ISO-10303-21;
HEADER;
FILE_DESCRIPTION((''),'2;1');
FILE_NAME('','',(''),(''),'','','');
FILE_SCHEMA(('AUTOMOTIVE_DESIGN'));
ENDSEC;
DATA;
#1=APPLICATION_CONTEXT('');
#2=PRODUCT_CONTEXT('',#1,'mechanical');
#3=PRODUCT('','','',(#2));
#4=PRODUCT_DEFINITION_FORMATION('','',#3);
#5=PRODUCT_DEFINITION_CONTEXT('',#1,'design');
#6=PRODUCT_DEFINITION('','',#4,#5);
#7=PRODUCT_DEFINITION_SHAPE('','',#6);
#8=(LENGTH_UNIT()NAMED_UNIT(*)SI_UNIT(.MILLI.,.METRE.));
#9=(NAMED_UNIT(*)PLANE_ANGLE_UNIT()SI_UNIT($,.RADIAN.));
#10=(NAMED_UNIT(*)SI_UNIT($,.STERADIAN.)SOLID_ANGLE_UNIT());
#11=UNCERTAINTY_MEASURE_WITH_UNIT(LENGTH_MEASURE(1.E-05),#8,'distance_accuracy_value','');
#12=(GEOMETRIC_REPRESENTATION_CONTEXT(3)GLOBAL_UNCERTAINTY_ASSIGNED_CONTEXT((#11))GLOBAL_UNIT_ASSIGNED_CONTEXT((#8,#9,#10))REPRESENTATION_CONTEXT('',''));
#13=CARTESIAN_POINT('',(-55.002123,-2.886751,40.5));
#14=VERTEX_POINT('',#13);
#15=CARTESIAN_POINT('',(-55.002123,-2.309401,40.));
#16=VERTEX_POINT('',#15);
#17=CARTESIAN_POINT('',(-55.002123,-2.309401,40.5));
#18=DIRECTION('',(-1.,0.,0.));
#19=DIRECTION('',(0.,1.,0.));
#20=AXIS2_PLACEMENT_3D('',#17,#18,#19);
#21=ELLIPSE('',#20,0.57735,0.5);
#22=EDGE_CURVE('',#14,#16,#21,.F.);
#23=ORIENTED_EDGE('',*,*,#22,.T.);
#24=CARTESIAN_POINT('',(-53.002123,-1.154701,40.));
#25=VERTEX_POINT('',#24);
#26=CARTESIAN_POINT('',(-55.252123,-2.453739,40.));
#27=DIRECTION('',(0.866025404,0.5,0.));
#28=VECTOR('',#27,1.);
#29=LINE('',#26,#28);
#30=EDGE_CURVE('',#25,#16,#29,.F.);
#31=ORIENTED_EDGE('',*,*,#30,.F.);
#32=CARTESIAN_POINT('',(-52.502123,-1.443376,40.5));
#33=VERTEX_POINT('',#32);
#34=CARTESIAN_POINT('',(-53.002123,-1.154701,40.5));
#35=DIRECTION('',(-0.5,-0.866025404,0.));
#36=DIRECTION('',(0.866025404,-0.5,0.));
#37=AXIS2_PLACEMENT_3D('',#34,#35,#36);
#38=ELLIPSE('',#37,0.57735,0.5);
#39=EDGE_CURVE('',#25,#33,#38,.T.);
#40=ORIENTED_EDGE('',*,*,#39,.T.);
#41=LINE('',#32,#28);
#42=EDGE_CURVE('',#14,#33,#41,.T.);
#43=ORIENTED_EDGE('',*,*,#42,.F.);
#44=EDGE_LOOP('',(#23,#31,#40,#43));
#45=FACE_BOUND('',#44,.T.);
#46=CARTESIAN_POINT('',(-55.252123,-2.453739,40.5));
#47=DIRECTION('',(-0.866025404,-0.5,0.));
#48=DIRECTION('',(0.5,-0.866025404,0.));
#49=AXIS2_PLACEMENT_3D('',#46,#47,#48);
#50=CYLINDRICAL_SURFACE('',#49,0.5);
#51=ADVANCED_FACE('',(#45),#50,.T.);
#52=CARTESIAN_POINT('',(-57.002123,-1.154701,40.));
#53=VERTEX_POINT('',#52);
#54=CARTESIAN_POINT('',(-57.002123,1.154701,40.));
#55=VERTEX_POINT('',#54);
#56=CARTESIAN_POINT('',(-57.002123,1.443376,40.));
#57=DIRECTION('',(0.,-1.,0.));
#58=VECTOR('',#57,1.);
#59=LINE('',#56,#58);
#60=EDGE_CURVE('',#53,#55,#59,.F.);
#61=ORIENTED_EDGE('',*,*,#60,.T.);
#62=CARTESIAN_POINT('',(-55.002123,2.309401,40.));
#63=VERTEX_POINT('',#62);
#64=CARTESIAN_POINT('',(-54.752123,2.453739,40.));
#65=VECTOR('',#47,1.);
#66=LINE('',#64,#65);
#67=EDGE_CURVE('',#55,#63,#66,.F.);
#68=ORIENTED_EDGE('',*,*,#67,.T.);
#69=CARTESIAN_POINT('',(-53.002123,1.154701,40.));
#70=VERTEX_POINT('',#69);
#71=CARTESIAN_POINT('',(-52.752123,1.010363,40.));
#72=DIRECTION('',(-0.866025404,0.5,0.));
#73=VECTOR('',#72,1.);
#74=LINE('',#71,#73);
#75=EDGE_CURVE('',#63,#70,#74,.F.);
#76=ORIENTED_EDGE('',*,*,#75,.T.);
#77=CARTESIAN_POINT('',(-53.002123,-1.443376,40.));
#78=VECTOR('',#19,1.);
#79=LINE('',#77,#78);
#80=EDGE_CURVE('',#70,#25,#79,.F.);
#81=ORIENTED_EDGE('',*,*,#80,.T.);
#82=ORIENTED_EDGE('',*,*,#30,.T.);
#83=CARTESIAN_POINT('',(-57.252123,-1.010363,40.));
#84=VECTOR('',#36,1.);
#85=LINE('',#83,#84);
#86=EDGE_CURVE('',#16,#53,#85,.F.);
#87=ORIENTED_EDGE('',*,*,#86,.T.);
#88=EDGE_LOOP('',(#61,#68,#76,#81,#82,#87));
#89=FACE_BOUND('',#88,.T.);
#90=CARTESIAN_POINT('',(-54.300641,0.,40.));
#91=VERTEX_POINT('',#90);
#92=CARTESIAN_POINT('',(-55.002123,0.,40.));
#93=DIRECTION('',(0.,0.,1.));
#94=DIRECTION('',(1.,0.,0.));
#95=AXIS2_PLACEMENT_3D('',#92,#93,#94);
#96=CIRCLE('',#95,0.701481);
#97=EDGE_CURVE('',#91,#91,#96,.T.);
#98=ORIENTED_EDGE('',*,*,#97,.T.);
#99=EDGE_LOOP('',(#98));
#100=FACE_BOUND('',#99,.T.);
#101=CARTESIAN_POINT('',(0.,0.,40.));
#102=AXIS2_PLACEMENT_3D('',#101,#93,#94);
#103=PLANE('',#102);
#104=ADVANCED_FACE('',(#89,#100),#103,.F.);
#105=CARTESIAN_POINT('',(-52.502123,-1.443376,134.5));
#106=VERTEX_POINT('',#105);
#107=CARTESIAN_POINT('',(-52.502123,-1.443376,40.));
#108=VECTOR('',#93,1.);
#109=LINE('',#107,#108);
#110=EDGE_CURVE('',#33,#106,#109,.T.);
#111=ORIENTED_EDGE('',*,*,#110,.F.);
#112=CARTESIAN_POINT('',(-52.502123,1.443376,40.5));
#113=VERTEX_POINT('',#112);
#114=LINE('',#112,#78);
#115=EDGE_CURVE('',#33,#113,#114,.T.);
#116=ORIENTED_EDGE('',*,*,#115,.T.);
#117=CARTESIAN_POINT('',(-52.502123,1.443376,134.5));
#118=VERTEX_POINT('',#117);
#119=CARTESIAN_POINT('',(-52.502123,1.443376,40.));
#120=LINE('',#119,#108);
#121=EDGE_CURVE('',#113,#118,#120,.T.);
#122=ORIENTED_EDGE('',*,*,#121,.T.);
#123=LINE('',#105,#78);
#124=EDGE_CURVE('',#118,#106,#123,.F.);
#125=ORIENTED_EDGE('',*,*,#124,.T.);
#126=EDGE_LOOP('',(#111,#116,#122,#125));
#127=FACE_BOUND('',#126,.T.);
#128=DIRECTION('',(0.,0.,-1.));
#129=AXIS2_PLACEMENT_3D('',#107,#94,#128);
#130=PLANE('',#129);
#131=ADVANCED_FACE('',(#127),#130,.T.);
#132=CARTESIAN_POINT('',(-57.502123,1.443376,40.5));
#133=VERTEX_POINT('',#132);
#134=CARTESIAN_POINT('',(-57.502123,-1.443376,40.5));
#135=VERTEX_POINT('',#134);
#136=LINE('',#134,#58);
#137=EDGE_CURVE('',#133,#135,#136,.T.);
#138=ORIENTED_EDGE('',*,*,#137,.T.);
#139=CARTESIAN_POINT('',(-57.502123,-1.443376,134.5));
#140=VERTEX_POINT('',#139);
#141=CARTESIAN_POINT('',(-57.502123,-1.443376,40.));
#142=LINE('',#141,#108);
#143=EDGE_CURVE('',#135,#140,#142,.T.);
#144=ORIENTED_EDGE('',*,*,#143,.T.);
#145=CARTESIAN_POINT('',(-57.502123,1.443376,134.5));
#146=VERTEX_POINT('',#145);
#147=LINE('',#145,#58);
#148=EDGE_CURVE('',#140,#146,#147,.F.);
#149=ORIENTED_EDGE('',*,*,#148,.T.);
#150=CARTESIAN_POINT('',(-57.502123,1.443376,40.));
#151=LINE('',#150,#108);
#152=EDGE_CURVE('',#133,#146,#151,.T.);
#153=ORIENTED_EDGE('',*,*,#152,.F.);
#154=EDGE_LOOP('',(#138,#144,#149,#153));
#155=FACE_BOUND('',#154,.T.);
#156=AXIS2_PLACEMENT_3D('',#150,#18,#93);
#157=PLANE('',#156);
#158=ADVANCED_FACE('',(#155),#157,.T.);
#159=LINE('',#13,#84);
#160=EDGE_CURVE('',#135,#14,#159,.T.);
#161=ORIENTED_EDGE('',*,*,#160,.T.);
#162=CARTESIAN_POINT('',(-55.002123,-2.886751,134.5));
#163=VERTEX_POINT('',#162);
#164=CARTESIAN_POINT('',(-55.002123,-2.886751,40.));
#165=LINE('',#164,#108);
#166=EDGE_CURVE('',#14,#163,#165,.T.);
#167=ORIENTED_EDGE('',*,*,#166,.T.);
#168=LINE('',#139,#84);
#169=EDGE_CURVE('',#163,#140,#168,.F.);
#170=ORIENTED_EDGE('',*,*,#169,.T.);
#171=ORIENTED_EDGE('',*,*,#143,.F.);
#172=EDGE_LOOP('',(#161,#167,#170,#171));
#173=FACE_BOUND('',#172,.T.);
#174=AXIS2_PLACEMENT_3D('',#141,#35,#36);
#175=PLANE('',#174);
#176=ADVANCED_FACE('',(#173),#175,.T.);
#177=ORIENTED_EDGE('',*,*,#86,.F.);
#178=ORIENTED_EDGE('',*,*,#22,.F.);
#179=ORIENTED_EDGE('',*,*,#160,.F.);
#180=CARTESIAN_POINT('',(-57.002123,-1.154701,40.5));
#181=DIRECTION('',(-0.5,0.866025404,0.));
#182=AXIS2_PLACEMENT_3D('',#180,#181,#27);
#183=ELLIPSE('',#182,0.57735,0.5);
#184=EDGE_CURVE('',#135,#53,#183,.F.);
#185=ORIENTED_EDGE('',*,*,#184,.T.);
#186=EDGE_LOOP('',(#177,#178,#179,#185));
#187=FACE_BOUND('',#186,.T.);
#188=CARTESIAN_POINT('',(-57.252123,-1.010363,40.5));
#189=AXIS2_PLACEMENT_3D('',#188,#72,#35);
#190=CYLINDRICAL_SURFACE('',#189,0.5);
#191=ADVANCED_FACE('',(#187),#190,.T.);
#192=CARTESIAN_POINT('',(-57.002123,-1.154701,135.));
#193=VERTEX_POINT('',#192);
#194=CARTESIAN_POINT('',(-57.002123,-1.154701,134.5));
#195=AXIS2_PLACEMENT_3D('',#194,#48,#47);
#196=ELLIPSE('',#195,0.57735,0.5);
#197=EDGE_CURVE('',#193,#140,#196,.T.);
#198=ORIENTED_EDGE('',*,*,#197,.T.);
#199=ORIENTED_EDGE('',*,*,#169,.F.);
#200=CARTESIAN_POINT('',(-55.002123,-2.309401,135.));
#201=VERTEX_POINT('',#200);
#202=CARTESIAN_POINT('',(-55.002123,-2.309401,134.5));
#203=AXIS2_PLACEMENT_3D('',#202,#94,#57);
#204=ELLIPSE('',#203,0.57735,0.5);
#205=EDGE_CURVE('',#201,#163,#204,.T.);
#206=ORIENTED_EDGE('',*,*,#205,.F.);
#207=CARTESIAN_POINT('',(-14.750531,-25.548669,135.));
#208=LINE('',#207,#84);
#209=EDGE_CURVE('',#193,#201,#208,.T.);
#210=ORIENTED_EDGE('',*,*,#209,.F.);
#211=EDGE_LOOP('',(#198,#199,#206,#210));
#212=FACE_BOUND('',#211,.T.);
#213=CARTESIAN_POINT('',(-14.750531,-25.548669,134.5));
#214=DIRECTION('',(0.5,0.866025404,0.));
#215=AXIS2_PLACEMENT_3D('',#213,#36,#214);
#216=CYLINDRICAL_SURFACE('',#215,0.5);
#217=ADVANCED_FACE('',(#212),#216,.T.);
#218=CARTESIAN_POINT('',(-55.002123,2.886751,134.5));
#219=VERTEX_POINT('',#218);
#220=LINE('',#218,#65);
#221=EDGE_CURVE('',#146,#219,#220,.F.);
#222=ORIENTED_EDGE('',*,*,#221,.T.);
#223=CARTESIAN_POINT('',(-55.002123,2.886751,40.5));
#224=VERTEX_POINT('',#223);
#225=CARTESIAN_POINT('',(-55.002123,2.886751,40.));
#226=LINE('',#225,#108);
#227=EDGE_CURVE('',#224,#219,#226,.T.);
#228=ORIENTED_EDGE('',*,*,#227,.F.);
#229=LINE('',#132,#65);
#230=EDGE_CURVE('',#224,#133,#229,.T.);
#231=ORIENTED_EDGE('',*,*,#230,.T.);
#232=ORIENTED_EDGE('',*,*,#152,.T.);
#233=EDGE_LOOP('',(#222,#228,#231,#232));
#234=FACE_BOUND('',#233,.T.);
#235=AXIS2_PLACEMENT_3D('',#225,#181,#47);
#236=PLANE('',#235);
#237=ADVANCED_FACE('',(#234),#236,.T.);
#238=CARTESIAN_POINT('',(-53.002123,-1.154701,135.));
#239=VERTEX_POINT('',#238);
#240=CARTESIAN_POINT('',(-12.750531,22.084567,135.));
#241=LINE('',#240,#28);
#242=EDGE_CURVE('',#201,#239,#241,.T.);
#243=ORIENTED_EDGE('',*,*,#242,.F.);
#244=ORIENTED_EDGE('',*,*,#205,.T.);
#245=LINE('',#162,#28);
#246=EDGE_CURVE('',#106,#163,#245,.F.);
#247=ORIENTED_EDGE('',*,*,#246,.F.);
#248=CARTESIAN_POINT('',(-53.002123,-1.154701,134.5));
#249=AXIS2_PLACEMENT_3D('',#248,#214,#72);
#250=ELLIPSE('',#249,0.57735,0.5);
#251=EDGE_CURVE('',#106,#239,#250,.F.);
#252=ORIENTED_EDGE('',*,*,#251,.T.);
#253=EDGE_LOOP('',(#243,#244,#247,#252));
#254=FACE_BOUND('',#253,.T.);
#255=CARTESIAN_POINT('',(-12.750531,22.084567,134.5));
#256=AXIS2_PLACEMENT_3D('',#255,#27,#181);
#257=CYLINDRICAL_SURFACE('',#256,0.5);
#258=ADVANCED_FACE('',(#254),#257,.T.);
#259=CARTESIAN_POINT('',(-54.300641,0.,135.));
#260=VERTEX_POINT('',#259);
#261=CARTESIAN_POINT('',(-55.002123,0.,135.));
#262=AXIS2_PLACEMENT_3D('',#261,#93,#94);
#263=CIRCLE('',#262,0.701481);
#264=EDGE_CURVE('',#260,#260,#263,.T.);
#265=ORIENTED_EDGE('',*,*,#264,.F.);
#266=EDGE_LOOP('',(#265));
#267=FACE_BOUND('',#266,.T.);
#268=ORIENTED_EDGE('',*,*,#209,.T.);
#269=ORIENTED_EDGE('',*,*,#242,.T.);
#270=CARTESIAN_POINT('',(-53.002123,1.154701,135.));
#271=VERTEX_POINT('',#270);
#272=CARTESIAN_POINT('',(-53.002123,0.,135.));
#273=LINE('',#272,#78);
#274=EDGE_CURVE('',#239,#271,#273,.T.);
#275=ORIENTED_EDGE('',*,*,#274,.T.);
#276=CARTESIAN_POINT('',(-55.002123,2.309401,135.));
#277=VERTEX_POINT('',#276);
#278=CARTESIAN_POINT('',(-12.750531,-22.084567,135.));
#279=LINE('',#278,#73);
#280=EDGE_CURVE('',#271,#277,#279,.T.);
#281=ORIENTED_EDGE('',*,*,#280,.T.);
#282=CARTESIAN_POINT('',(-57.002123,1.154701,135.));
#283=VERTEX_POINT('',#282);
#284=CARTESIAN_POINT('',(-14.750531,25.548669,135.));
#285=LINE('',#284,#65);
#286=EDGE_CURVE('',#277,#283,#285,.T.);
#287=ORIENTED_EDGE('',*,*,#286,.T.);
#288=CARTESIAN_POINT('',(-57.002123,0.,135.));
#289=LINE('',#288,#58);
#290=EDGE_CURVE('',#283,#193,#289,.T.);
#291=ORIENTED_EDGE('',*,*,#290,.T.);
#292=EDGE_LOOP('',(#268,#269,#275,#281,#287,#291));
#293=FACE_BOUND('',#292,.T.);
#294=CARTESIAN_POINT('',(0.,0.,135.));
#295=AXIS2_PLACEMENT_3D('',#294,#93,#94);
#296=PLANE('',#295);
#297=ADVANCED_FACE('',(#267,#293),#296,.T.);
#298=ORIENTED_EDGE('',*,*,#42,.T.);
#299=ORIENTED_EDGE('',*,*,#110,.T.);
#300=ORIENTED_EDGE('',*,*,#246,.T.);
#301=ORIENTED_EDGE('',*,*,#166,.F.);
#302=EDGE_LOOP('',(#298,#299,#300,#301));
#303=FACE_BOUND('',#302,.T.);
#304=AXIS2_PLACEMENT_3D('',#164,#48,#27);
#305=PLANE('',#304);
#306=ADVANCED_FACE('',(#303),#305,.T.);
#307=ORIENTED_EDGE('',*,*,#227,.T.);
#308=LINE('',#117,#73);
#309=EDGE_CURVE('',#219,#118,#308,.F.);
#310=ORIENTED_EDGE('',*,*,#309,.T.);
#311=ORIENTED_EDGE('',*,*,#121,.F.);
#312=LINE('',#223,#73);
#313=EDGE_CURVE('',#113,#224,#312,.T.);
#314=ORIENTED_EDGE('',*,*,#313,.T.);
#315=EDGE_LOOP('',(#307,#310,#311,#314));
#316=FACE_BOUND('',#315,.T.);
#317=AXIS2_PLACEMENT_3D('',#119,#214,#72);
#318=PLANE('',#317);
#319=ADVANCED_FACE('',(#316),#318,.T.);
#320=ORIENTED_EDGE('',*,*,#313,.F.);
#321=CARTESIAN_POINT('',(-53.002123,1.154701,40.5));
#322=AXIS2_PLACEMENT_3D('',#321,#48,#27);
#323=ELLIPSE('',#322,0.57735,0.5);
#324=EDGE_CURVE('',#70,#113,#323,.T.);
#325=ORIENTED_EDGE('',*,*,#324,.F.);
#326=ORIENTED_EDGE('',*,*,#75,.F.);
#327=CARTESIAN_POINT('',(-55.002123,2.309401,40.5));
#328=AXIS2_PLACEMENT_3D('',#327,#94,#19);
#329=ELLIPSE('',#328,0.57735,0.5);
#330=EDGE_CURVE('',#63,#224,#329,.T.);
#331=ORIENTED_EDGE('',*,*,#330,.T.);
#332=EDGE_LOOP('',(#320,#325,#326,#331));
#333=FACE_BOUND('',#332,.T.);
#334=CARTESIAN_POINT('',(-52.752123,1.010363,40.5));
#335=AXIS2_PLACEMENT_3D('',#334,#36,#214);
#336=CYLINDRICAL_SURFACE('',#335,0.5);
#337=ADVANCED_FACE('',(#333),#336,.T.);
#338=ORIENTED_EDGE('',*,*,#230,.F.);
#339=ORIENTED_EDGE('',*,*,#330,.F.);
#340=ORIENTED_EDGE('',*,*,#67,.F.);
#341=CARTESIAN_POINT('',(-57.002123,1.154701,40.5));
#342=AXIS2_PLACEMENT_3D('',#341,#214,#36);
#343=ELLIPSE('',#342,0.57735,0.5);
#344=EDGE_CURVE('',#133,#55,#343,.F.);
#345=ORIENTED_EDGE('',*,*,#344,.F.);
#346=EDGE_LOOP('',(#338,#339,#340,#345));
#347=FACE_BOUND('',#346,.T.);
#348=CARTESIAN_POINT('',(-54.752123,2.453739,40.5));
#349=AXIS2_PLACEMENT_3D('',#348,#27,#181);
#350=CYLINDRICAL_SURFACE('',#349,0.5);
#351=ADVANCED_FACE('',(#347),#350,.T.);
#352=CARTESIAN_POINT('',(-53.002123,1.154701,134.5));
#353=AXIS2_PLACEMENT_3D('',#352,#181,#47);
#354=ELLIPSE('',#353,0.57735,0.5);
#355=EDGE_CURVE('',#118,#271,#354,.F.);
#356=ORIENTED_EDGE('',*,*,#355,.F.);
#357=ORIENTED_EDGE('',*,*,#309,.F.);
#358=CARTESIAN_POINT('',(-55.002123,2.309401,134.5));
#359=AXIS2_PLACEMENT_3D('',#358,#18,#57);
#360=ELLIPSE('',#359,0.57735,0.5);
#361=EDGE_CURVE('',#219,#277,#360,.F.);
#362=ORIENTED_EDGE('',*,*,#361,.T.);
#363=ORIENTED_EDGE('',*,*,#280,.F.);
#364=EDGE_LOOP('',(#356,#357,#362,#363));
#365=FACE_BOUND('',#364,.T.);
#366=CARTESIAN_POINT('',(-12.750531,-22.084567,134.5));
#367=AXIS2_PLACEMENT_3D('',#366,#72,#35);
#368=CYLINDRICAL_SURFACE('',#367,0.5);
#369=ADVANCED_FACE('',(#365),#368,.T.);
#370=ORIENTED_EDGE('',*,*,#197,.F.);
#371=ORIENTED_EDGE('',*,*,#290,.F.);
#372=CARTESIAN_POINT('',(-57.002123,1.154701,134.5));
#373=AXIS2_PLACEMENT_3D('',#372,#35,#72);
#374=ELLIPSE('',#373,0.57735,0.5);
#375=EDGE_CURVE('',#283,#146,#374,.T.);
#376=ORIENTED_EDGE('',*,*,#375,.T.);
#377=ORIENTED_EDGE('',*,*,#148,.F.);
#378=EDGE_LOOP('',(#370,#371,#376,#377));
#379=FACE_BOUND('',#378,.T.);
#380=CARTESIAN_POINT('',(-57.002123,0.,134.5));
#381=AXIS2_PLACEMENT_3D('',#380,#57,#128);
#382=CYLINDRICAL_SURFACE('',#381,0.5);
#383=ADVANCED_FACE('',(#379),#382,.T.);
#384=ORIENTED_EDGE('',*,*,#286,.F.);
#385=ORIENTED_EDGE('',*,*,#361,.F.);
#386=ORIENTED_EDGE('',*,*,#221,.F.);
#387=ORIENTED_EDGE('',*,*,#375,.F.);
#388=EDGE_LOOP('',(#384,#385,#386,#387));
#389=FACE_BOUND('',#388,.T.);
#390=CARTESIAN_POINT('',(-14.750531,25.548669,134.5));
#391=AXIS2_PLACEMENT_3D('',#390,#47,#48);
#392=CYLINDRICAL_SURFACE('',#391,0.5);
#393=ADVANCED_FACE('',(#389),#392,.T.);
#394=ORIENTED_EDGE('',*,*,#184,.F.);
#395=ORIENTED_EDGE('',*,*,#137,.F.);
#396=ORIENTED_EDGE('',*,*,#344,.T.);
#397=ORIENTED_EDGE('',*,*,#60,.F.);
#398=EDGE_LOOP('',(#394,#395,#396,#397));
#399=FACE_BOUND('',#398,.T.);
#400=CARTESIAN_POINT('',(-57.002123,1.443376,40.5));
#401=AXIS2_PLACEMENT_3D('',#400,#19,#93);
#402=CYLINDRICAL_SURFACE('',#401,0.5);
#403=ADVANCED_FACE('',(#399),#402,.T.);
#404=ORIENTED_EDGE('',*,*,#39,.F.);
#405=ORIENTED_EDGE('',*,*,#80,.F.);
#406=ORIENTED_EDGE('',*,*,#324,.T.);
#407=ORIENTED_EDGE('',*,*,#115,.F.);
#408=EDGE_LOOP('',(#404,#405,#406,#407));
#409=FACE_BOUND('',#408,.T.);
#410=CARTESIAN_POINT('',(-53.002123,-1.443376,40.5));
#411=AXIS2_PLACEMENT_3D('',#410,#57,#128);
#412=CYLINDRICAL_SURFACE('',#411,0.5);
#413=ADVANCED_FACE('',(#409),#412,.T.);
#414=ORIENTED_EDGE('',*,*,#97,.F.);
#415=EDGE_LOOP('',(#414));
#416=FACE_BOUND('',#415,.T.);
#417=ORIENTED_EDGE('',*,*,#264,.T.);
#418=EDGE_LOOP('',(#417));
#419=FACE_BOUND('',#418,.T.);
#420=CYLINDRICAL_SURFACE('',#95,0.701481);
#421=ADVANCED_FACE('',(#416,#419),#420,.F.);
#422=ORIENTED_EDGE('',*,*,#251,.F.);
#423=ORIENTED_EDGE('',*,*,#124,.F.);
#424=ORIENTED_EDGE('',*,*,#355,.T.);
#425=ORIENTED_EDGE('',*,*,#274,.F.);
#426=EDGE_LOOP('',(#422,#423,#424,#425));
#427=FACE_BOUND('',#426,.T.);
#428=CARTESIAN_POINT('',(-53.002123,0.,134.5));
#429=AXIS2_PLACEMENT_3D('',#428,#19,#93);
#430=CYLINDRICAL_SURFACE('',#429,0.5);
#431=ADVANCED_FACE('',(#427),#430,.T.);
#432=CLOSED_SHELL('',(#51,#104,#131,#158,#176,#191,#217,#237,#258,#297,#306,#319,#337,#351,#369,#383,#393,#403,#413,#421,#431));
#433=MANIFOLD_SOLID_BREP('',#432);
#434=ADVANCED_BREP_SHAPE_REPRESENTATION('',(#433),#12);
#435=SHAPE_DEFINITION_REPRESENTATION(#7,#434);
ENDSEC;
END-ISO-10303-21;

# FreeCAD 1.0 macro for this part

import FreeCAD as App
import Part
import Sketcher
from FreeCAD import Vector
Q = App.Units.Quantity


def edges_at(feature, points):
    """Names of the edges that pass closest to the given points."""
    edges = feature.Shape.Edges
    near = lambda p: min(range(len(edges)), key=lambda i: edges[i].distToShape(Part.Vertex(*p))[0])
    return sorted({f"Edge{near(p) + 1}" for p in points})

doc = App.newDocument("Part")
params = doc.addObject("Spreadsheet::Sheet", "Params")
for row, (alias, value) in enumerate([
    ("pad1_length", "95 mm"),
    ("fillet_radius", "0.5 mm"),
], start=1):
    params.set(f"A{row}", alias)
    params.set(f"B{row}", "=" + value)
    params.setAlias(f"B{row}", alias)

body = doc.addObject("PartDesign::Body", "Body")

# Sketch on XY plane
sketch1 = body.newObject("Sketcher::SketchObject", "Sketch")
sketch1.AttachmentSupport = (doc.getObject("XY_Plane"), [""])
sketch1.MapMode = "FlatFace"
sketch1.AttachmentOffset = App.Placement(Vector(0, 0, 135), App.Rotation())
sketch1.addGeometry([
    Part.LineSegment(Vector(-55, 2.9, 0), Vector(-57.5, 1.4, 0)),  # 0
    Part.LineSegment(Vector(-57.5, 1.4, 0), Vector(-57.5, -1.4, 0)),  # 1
    Part.LineSegment(Vector(-57.5, -1.4, 0), Vector(-55, -2.9, 0)),  # 2
    Part.LineSegment(Vector(-55, -2.9, 0), Vector(-52.5, -1.4, 0)),  # 3
    Part.LineSegment(Vector(-52.5, -1.4, 0), Vector(-52.5, 1.4, 0)),  # 4
    Part.LineSegment(Vector(-52.5, 1.4, 0), Vector(-55, 2.9, 0)),  # 5
], False)
sketch1.addConstraint([
    Sketcher.Constraint("Coincident", 0, 2, 1, 1),
    Sketcher.Constraint("Coincident", 1, 2, 2, 1),
    Sketcher.Constraint("Coincident", 2, 2, 3, 1),
    Sketcher.Constraint("Coincident", 3, 2, 4, 1),
    Sketcher.Constraint("Coincident", 4, 2, 5, 1),
    Sketcher.Constraint("Coincident", 5, 2, 0, 1),
    Sketcher.Constraint("Vertical", 1),
    Sketcher.Constraint("Vertical", 4),
    Sketcher.Constraint("Symmetric", 2, 2, 5, 2, -1),
    Sketcher.Constraint("Parallel", 0, 3),
    Sketcher.Constraint("Parallel", 2, 5),
    Sketcher.Constraint("Horizontal", 1, 2, 3, 2),
    Sketcher.Constraint("Horizontal", 0, 2, 4, 2),
    Sketcher.Constraint("Angle", 0, Q("-150 deg")),
    Sketcher.Constraint("DistanceX", 1, 2, 3, 2, 5.0),
    Sketcher.Constraint("DistanceY", 1, 2, 1, 1, 2.886751),
    Sketcher.Constraint("DistanceX", 0, 2, -1, 1, 57.502123),
])
pad1 = body.newObject("PartDesign::Pad", "Pad")
pad1.Profile = sketch1
pad1.setExpression("Length", "Params.pad1_length")
pad1.Reversed = True
doc.recompute()

fillet = body.newObject("PartDesign::Fillet", "Fillet")
fillet.Base = (pad1, edges_at(pad1, [
    (-57.502, 0, 40),
    (-56.252, -2.165, 40),
    (-53.752, -2.165, 40),
    (-52.502, 0, 40),
    (-53.752, 2.165, 40),
    (-52.502, 0, 135),
    (-53.752, -2.165, 135),
    (-56.252, -2.165, 135),
    (-57.502, 0, 135),
    (-56.252, 2.165, 135),
    (-53.752, 2.165, 135),
    (-56.252, 2.165, 40),
]))
fillet.setExpression("Radius", "Params.fillet_radius")

# Sketch on XY plane
sketch2 = body.newObject("Sketcher::SketchObject", "Sketch001")
sketch2.AttachmentSupport = (doc.getObject("XY_Plane"), [""])
sketch2.MapMode = "FlatFace"
sketch2.AttachmentOffset = App.Placement(Vector(0, 0, 135), App.Rotation())
sketch2.addGeometry(Part.Circle(Vector(-55, 0, 0), Vector(0, 0, 1), 0.7), False)
sketch2.addConstraint([
    Sketcher.Constraint("PointOnObject", 0, 3, -1),
    Sketcher.Constraint("Diameter", 0, 1.402963),
    Sketcher.Constraint("DistanceX", 0, 3, -1, 1, 55.002123),
])
pocket1 = body.newObject("PartDesign::Pocket", "Pocket")
pocket1.Profile = sketch2
pocket1.Type = "ThroughAll"

doc.recompute()
